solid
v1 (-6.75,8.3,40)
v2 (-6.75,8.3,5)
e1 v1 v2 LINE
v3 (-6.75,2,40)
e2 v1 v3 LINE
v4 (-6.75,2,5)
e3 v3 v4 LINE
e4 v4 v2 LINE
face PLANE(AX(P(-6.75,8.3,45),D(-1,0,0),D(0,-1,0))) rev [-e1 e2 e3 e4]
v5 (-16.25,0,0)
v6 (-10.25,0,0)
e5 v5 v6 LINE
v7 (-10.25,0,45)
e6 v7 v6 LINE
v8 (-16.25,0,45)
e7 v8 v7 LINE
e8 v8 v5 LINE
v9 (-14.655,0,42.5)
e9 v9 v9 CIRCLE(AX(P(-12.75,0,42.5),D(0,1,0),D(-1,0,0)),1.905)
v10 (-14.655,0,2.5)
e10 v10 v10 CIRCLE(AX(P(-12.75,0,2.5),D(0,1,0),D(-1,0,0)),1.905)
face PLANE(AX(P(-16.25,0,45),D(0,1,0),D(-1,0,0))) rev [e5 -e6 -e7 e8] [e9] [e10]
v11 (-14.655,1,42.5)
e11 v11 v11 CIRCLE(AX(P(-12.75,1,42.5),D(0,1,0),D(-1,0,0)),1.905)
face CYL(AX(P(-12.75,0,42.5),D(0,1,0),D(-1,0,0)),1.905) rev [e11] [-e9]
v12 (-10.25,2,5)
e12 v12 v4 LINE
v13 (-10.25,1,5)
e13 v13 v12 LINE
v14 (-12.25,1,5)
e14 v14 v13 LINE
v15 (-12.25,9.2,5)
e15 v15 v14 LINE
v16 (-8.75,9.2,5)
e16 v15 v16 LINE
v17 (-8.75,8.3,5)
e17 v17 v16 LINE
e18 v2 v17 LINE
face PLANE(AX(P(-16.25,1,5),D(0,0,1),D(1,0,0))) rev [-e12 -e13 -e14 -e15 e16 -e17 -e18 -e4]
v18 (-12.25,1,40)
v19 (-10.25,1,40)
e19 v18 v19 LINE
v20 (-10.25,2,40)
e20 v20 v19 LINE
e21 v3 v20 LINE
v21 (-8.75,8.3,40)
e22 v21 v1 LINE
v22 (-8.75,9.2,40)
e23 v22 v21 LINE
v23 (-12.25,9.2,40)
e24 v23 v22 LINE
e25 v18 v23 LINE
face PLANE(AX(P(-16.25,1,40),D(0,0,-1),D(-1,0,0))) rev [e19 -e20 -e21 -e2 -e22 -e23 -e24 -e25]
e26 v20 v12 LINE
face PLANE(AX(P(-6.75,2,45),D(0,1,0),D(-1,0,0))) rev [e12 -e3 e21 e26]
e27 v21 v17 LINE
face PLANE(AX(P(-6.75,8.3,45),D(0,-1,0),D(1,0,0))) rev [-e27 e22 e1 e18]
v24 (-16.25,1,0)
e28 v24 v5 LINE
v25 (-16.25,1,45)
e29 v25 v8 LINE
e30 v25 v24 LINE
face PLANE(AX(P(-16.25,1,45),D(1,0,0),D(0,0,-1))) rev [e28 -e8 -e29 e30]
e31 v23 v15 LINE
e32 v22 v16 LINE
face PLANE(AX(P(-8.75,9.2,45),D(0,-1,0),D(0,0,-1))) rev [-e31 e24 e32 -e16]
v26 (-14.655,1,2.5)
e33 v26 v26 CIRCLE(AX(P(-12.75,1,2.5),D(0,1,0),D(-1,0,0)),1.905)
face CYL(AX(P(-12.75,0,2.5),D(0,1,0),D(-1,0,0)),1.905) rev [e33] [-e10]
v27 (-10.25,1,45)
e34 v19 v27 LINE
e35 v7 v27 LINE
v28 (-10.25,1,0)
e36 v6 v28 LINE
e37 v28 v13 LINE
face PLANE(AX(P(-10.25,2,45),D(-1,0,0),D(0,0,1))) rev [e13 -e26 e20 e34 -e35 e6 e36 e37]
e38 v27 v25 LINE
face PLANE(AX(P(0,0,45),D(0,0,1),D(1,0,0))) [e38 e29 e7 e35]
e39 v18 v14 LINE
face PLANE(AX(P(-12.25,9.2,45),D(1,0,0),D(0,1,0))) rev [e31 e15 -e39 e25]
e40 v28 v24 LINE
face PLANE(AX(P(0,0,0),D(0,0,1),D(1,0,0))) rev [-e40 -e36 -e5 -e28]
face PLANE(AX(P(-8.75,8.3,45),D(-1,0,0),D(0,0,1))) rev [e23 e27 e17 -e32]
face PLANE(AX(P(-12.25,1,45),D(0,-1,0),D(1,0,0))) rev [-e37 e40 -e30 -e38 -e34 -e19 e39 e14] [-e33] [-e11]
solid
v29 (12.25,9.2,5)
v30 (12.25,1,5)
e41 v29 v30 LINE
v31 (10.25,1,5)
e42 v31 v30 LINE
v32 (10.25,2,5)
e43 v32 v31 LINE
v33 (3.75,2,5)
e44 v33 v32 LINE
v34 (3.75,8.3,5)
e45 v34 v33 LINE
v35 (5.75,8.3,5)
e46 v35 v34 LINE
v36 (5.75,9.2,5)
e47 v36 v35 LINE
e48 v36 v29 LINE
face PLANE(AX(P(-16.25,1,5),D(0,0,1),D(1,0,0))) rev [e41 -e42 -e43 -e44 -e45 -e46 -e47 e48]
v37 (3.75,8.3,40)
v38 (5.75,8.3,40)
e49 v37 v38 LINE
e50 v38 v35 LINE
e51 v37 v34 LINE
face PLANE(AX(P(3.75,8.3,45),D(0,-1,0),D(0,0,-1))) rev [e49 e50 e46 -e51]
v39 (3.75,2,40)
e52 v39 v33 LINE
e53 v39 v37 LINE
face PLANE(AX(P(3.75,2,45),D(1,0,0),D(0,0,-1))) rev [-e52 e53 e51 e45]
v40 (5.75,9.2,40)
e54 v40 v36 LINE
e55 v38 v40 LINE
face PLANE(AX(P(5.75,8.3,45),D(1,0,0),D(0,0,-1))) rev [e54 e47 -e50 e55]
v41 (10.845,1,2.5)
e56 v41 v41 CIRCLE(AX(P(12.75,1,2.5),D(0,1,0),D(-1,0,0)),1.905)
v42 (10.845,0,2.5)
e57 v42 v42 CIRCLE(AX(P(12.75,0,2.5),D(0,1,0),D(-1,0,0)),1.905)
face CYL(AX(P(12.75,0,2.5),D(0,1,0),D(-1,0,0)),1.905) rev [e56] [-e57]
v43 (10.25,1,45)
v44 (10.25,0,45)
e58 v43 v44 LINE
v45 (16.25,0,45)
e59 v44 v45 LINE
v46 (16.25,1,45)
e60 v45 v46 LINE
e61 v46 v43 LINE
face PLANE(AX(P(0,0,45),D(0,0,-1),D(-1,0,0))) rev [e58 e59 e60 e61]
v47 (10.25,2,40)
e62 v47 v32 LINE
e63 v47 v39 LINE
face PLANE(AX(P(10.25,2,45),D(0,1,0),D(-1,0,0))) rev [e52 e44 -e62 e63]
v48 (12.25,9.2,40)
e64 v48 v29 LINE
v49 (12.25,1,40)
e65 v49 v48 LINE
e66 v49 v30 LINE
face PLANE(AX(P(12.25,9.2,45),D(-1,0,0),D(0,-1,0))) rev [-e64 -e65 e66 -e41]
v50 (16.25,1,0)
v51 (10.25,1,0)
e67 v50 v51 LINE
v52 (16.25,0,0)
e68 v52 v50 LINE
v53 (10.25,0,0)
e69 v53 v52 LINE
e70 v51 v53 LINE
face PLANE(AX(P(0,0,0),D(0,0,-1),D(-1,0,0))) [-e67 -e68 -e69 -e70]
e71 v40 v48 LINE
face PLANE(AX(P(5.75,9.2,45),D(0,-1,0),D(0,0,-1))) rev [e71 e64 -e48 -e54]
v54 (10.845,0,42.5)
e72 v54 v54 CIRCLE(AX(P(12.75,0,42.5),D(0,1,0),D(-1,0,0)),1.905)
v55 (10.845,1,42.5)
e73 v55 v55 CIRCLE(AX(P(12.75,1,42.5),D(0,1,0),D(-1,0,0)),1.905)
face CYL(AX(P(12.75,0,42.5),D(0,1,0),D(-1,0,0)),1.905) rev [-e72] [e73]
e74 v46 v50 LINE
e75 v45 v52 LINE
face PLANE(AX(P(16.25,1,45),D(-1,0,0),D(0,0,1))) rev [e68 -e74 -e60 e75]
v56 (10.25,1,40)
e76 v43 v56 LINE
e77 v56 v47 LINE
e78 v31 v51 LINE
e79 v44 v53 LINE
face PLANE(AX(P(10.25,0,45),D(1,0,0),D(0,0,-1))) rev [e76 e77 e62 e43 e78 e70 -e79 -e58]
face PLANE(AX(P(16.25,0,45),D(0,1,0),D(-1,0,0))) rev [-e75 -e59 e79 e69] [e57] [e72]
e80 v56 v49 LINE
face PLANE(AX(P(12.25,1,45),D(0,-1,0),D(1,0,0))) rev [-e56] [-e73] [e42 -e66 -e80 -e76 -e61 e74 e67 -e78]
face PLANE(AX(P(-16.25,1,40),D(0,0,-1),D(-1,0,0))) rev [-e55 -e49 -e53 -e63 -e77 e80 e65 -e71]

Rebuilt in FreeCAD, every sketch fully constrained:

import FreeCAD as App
import Part
import Sketcher

V = App.Vector

doc = App.newDocument("Part")
body = doc.addObject("PartDesign::Body", "Body")

# Sketch on XY plane
sketch1 = doc.addObject("Sketcher::SketchObject", "Sketch")
body.addObject(sketch1)
sketch1.AttachmentSupport = (doc.XY_Plane, [""])
sketch1.MapMode = "FlatFace"
sketch1.addGeometry([
    Part.LineSegment(V(10.2, 2, 0), V(10.2, 0, 0)),  # 0
    Part.LineSegment(V(10.2, 0, 0), V(16.2, 0, 0)),  # 1
    Part.LineSegment(V(16.2, 0, 0), V(16.2, 1, 0)),  # 2
    Part.LineSegment(V(16.2, 1, 0), V(12.2, 1, 0)),  # 3
    Part.LineSegment(V(12.2, 1, 0), V(12.2, 9.2, 0)),  # 4
    Part.LineSegment(V(12.2, 9.2, 0), V(5.8, 9.2, 0)),  # 5
    Part.LineSegment(V(5.8, 9.2, 0), V(5.8, 8.3, 0)),  # 6
    Part.LineSegment(V(5.8, 8.3, 0), V(3.8, 8.3, 0)),  # 7
    Part.LineSegment(V(3.8, 8.3, 0), V(3.8, 2, 0)),  # 8
    Part.LineSegment(V(3.8, 2, 0), V(10.2, 2, 0)),  # 9
], False)
sketch1.addConstraint([
    Sketcher.Constraint("Coincident", 0, 2, 1, 1),
    Sketcher.Constraint("Coincident", 1, 2, 2, 1),
    Sketcher.Constraint("Coincident", 2, 2, 3, 1),
    Sketcher.Constraint("Coincident", 3, 2, 4, 1),
    Sketcher.Constraint("Coincident", 4, 2, 5, 1),
    Sketcher.Constraint("Coincident", 5, 2, 6, 1),
    Sketcher.Constraint("Coincident", 6, 2, 7, 1),
    Sketcher.Constraint("Coincident", 7, 2, 8, 1),
    Sketcher.Constraint("Coincident", 8, 2, 9, 1),
    Sketcher.Constraint("Coincident", 9, 2, 0, 1),
    Sketcher.Constraint("Vertical", 0),
    Sketcher.Constraint("Horizontal", 1),
    Sketcher.Constraint("Vertical", 2),
    Sketcher.Constraint("Horizontal", 3),
    Sketcher.Constraint("Vertical", 4),
    Sketcher.Constraint("Horizontal", 5),
    Sketcher.Constraint("Vertical", 6),
    Sketcher.Constraint("Horizontal", 7),
    Sketcher.Constraint("Vertical", 8),
    Sketcher.Constraint("Horizontal", 9),
    Sketcher.Constraint("PointOnObject", 0, 2, -1),
    Sketcher.Constraint("Equal", 5, 9),
    Sketcher.Constraint("Equal", 7, 0),
    Sketcher.Constraint("DistanceX", 1, 1, 1, 2, 6.0),
    Sketcher.Constraint("DistanceX", 3, 2, 3, 1, 4.0),
    Sketcher.Constraint("DistanceY", 2, 1, 2, 2, 1.0),
    Sketcher.Constraint("DistanceX", 5, 2, 5, 1, 6.5),
    Sketcher.Constraint("DistanceY", 4, 1, 4, 2, 8.2),
    Sketcher.Constraint("DistanceY", 6, 2, 6, 1, 0.9),
    Sketcher.Constraint("DistanceX", -1, 1, 0, 2, 10.25),
])
pad1 = doc.addObject("PartDesign::Pad", "Pad")
body.addObject(pad1)
pad1.Profile = sketch1
pad1.Length = 45
body2 = doc.addObject("PartDesign::Body", "Body001")

# Sketch on XY plane
sketch2 = doc.addObject("Sketcher::SketchObject", "Sketch001")
body2.addObject(sketch2)
sketch2.AttachmentSupport = (doc.getObject("XY_Plane001"), [""])
sketch2.MapMode = "FlatFace"
sketch2.addGeometry([
    Part.LineSegment(V(-6.8, 2, 0), V(-6.8, 8.3, 0)),  # 0
    Part.LineSegment(V(-6.8, 8.3, 0), V(-8.8, 8.3, 0)),  # 1
    Part.LineSegment(V(-8.8, 8.3, 0), V(-8.8, 9.2, 0)),  # 2
    Part.LineSegment(V(-8.8, 9.2, 0), V(-12.2, 9.2, 0)),  # 3
    Part.LineSegment(V(-12.2, 9.2, 0), V(-12.2, 1, 0)),  # 4
    Part.LineSegment(V(-12.2, 1, 0), V(-16.2, 1, 0)),  # 5
    Part.LineSegment(V(-16.2, 1, 0), V(-16.2, 0, 0)),  # 6
    Part.LineSegment(V(-16.2, 0, 0), V(-10.2, 0, 0)),  # 7
    Part.LineSegment(V(-10.2, 0, 0), V(-10.2, 2, 0)),  # 8
    Part.LineSegment(V(-10.2, 2, 0), V(-6.8, 2, 0)),  # 9
], False)
sketch2.addConstraint([
    Sketcher.Constraint("Coincident", 0, 2, 1, 1),
    Sketcher.Constraint("Coincident", 1, 2, 2, 1),
    Sketcher.Constraint("Coincident", 2, 2, 3, 1),
    Sketcher.Constraint("Coincident", 3, 2, 4, 1),
    Sketcher.Constraint("Coincident", 4, 2, 5, 1),
    Sketcher.Constraint("Coincident", 5, 2, 6, 1),
    Sketcher.Constraint("Coincident", 6, 2, 7, 1),
    Sketcher.Constraint("Coincident", 7, 2, 8, 1),
    Sketcher.Constraint("Coincident", 8, 2, 9, 1),
    Sketcher.Constraint("Coincident", 9, 2, 0, 1),
    Sketcher.Constraint("Vertical", 0),
    Sketcher.Constraint("Horizontal", 1),
    Sketcher.Constraint("Vertical", 2),
    Sketcher.Constraint("Horizontal", 3),
    Sketcher.Constraint("Vertical", 4),
    Sketcher.Constraint("Horizontal", 5),
    Sketcher.Constraint("Vertical", 6),
    Sketcher.Constraint("Horizontal", 7),
    Sketcher.Constraint("Vertical", 8),
    Sketcher.Constraint("Horizontal", 9),
    Sketcher.Constraint("PointOnObject", 6, 2, -1),
    Sketcher.Constraint("Equal", 3, 9),
    Sketcher.Constraint("Equal", 1, 8),
    Sketcher.Constraint("DistanceX", 1, 2, 1, 1, 2.0),
    Sketcher.Constraint("DistanceX", 5, 2, 5, 1, 4.0),
    Sketcher.Constraint("DistanceY", 6, 2, 6, 1, 1.0),
    Sketcher.Constraint("DistanceX", 3, 2, 3, 1, 3.5),
    Sketcher.Constraint("DistanceY", 0, 1, 0, 2, 6.3),
    Sketcher.Constraint("DistanceY", 2, 1, 2, 2, 0.9),
    Sketcher.Constraint("DistanceX", 0, 2, -1, 1, 6.75),
])
pad2 = doc.addObject("PartDesign::Pad", "Pad001")
body2.addObject(pad2)
pad2.Profile = sketch2
pad2.Length = 45
body3 = doc.addObject("PartDesign::Body", "Body002")

# Sketch on YZ plane
sketch3 = doc.addObject("Sketcher::SketchObject", "Sketch002")
body3.addObject(sketch3)
sketch3.AttachmentSupport = (doc.getObject("YZ_Plane002"), [""])
sketch3.MapMode = "FlatFace"
sketch3.AttachmentOffset = App.Placement(V(0, 0, 12.25), App.Rotation())
sketch3.addGeometry([
    Part.LineSegment(V(9, 45, 0), V(1, 45, 0)),
    Part.LineSegment(V(1, 45, 0), V(1, 40, 0)),
    Part.LineSegment(V(1, 40, 0), V(9, 40, 0)),
    Part.LineSegment(V(9, 40, 0), V(9, 45, 0)),
], False)
sketch3.addConstraint([
    Sketcher.Constraint("Coincident", 0, 2, 1, 1),
    Sketcher.Constraint("Coincident", 1, 2, 2, 1),
    Sketcher.Constraint("Coincident", 2, 2, 3, 1),
    Sketcher.Constraint("Coincident", 3, 2, 0, 1),
    Sketcher.Constraint("Horizontal", 0),
    Sketcher.Constraint("Vertical", 1),
    Sketcher.Constraint("Horizontal", 2),
    Sketcher.Constraint("Vertical", 3),
    Sketcher.Constraint("DistanceY", 1, 2, 1, 1, 5.0),
    Sketcher.Constraint("DistanceX", 0, 2, 0, 1, 8.2),
    Sketcher.Constraint("DistanceX", -1, 1, 0, 2, 1.0),
    Sketcher.Constraint("DistanceY", -1, 1, 0, 2, 45.0),
])
pad3 = doc.addObject("PartDesign::Pad", "Pad002")
body3.addObject(pad3)
pad3.Profile = sketch3
pad3.Length = 29.5
pad3.Reversed = True
doc.recompute()

body4 = doc.addObject("PartDesign::Body", "Body003")
body4.BaseFeature = body3
boolean = doc.addObject("PartDesign::Boolean", "Boolean")
body.addObject(boolean)
boolean.Type = "Cut"
boolean.addObjects([body4])
doc.recompute()

boolean2 = doc.addObject("PartDesign::Boolean", "Boolean001")
body2.addObject(boolean2)
boolean2.Type = "Cut"
boolean2.addObjects([body3])
body5 = doc.addObject("PartDesign::Body", "Body004")
body5.AllowCompound = True

# Sketch on XZ plane
sketch4 = doc.addObject("Sketcher::SketchObject", "Sketch003")
body5.addObject(sketch4)
sketch4.AttachmentSupport = (doc.getObject("XZ_Plane004"), [""])
sketch4.MapMode = "FlatFace"
sketch4.AttachmentOffset = App.Placement(V(0, 0, -1), App.Rotation())
sketch4.addGeometry([
    Part.Circle(V(-12.8, 42.5, 0), V(0, 0, 1), 1.9),
    Part.Circle(V(12.8, 42.5, 0), V(0, 0, 1), 1.9),
], False)
sketch4.addConstraint([
    Sketcher.Constraint("Equal", 0, 1),
    Sketcher.Constraint("Symmetric", 0, 3, 1, 3, -2),
    Sketcher.Constraint("Diameter", 0, 3.81),
    Sketcher.Constraint("DistanceY", -1, 1, 0, 3, 42.5),
    Sketcher.Constraint("DistanceX", 0, 3, 1, 3, 25.5),
])
pad4 = doc.addObject("PartDesign::Pad", "Pad003")
body5.addObject(pad4)
pad4.Profile = sketch4
pad4.Length = 2
doc.recompute()

body6 = doc.addObject("PartDesign::Body", "Body005")
body6.BaseFeature = body5
boolean3 = doc.addObject("PartDesign::Boolean", "Boolean002")
body.addObject(boolean3)
boolean3.Type = "Cut"
boolean3.addObjects([body6])
doc.recompute()

boolean4 = doc.addObject("PartDesign::Boolean", "Boolean003")
body2.addObject(boolean4)
boolean4.Type = "Cut"
boolean4.addObjects([body5])
body7 = doc.addObject("PartDesign::Body", "Body006")

# Sketch on YZ plane
sketch5 = doc.addObject("Sketcher::SketchObject", "Sketch004")
body7.addObject(sketch5)
sketch5.AttachmentSupport = (doc.getObject("YZ_Plane006"), [""])
sketch5.MapMode = "FlatFace"
sketch5.AttachmentOffset = App.Placement(V(0, 0, 12.25), App.Rotation())
sketch5.addGeometry([
    Part.LineSegment(V(9, 5, 0), V(1, 5, 0)),
    Part.LineSegment(V(1, 5, 0), V(1, 0, 0)),
    Part.LineSegment(V(1, 0, 0), V(9, 0, 0)),
    Part.LineSegment(V(9, 0, 0), V(9, 5, 0)),
], False)
sketch5.addConstraint([
    Sketcher.Constraint("Coincident", 0, 2, 1, 1),
    Sketcher.Constraint("Coincident", 1, 2, 2, 1),
    Sketcher.Constraint("Coincident", 2, 2, 3, 1),
    Sketcher.Constraint("Coincident", 3, 2, 0, 1),
    Sketcher.Constraint("Horizontal", 0),
    Sketcher.Constraint("Vertical", 1),
    Sketcher.Constraint("Horizontal", 2),
    Sketcher.Constraint("Vertical", 3),
    Sketcher.Constraint("PointOnObject", 1, 2, -1),
    Sketcher.Constraint("DistanceY", 1, 2, 1, 1, 5.0),
    Sketcher.Constraint("DistanceX", 0, 2, 0, 1, 8.2),
    Sketcher.Constraint("DistanceX", -1, 1, 0, 2, 1.0),
])
pad5 = doc.addObject("PartDesign::Pad", "Pad004")
body7.addObject(pad5)
pad5.Profile = sketch5
pad5.Length = 29.5
pad5.Reversed = True
doc.recompute()

body8 = doc.addObject("PartDesign::Body", "Body007")
body8.BaseFeature = body7
boolean5 = doc.addObject("PartDesign::Boolean", "Boolean004")
body.addObject(boolean5)
boolean5.Type = "Cut"
boolean5.addObjects([body8])
doc.recompute()

boolean6 = doc.addObject("PartDesign::Boolean", "Boolean005")
body2.addObject(boolean6)
boolean6.Type = "Cut"
boolean6.addObjects([body7])
body9 = doc.addObject("PartDesign::Body", "Body008")
body9.AllowCompound = True

# Sketch on XZ plane
sketch6 = doc.addObject("Sketcher::SketchObject", "Sketch005")
body9.addObject(sketch6)
sketch6.AttachmentSupport = (doc.getObject("XZ_Plane008"), [""])
sketch6.MapMode = "FlatFace"
sketch6.AttachmentOffset = App.Placement(V(0, 0, -1), App.Rotation())
sketch6.addGeometry([
    Part.Circle(V(-12.8, 2.5, 0), V(0, 0, 1), 1.9),
    Part.Circle(V(12.8, 2.5, 0), V(0, 0, 1), 1.9),
], False)
sketch6.addConstraint([
    Sketcher.Constraint("Equal", 0, 1),
    Sketcher.Constraint("Symmetric", 0, 3, 1, 3, -2),
    Sketcher.Constraint("Diameter", 0, 3.81),
    Sketcher.Constraint("DistanceY", -1, 1, 0, 3, 2.5),
    Sketcher.Constraint("DistanceX", 0, 3, 1, 3, 25.5),
])
pad6 = doc.addObject("PartDesign::Pad", "Pad005")
body9.addObject(pad6)
pad6.Profile = sketch6
pad6.Length = 2
doc.recompute()

body10 = doc.addObject("PartDesign::Body", "Body009")
body10.BaseFeature = body9
boolean7 = doc.addObject("PartDesign::Boolean", "Boolean006")
body.addObject(boolean7)
boolean7.Type = "Cut"
boolean7.addObjects([body10])
doc.recompute()

boolean8 = doc.addObject("PartDesign::Boolean", "Boolean007")
body2.addObject(boolean8)
boolean8.Type = "Cut"
boolean8.addObjects([body9])

doc.recompute()
